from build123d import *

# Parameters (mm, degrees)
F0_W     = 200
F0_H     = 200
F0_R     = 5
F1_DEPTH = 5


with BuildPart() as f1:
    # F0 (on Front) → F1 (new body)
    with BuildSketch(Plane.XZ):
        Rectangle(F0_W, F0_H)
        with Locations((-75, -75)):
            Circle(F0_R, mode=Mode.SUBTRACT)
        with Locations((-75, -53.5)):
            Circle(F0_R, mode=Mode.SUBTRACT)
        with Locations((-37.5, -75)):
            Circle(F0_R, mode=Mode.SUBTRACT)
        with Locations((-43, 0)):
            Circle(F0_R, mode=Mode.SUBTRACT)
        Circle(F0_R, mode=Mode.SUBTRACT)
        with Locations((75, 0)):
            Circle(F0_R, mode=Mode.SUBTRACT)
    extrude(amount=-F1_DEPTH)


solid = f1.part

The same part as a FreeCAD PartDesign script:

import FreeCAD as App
import Part
import Sketcher
from FreeCAD import Vector
Q = App.Units.Quantity


def add_polygon(sketch, points):
    """Adds a closed chain of lines whose ends are joined by coincident constraints."""
    first, n = sketch.GeometryCount, len(points)
    for a, b in zip(points, points[1:] + points[:1]):
        sketch.addGeometry(Part.LineSegment(App.Vector(*a, 0), App.Vector(*b, 0)), False)
    for i in range(n):
        sketch.addConstraint(Sketcher.Constraint("Coincident", first + i, 2, first + (i + 1) % n, 1))

doc = App.newDocument("Part")
body = doc.addObject("PartDesign::Body", "Body")

sketch1 = doc.addObject("Sketcher::SketchObject", "Sketch")
body.addObject(sketch1)
sketch1.AttachmentSupport = (doc.XZ_Plane, [""])
sketch1.MapMode = "FlatFace"
add_polygon(sketch1, [(-100, 100), (-100, -100), (100, -100), (100, 100)])
sketch1.addGeometry(Part.Circle(Vector(-75, -75, 0), Vector(0, 0, 1), 5), False)
sketch1.addGeometry(Part.Circle(Vector(-38, -75, 0), Vector(0, 0, 1), 5), False)
sketch1.addGeometry(Part.Circle(Vector(-75, -54, 0), Vector(0, 0, 1), 5), False)
sketch1.addGeometry(Part.Circle(Vector(-43, 0, 0), Vector(0, 0, 1), 5), False)
sketch1.addGeometry(Part.Circle(Vector(0, 0, 0), Vector(0, 0, 1), 5), False)
sketch1.addGeometry(Part.Circle(Vector(75, 0, 0), Vector(0, 0, 1), 5), False)
sketch1.addConstraint([
    Sketcher.Constraint("Vertical", 0),
    Sketcher.Constraint("Horizontal", 1),
    Sketcher.Constraint("Vertical", 2),
    Sketcher.Constraint("Horizontal", 3),
    Sketcher.Constraint("Coincident", 8, 3, -1, 1),
    Sketcher.Constraint("Equal", 4, 5),
    Sketcher.Constraint("Equal", 5, 6),
    Sketcher.Constraint("Equal", 6, 7),
    Sketcher.Constraint("Equal", 7, 8),
    Sketcher.Constraint("Equal", 8, 9),
    Sketcher.Constraint("Symmetric", 0, 2, 2, 2, -1, 1),
    Sketcher.Constraint("PointOnObject", 7, 3, -1),
    Sketcher.Constraint("PointOnObject", 9, 3, -1),
    Sketcher.Constraint("Horizontal", 4, 3, 5, 3),
    Sketcher.Constraint("Vertical", 4, 3, 6, 3),
    Sketcher.Constraint("Equal", 3, 0),
    Sketcher.Constraint("Diameter", 4, Q("10 mm")),
    Sketcher.Constraint("DistanceX", 1, 1, 1, 2, Q("200 mm")),
    Sketcher.Constraint("DistanceX", 4, 3, -1, 1, Q("75 mm")),
    Sketcher.Constraint("DistanceY", 4, 3, -1, 1, Q("75 mm")),
    Sketcher.Constraint("DistanceX", 7, 3, -1, 1, Q("43 mm")),
    Sketcher.Constraint("DistanceX", -1, 1, 9, 3, Q("75 mm")),
    Sketcher.Constraint("DistanceX", 5, 3, -1, 1, Q("37.5 mm")),
    Sketcher.Constraint("DistanceY", 6, 3, -1, 1, Q("53.5 mm")),
])
pad1 = doc.addObject("PartDesign::Pad", "Pad")
body.addObject(pad1)
pad1.Profile = sketch1
pad1.Length = 5
pad1.Reversed = True

doc.recompute()
